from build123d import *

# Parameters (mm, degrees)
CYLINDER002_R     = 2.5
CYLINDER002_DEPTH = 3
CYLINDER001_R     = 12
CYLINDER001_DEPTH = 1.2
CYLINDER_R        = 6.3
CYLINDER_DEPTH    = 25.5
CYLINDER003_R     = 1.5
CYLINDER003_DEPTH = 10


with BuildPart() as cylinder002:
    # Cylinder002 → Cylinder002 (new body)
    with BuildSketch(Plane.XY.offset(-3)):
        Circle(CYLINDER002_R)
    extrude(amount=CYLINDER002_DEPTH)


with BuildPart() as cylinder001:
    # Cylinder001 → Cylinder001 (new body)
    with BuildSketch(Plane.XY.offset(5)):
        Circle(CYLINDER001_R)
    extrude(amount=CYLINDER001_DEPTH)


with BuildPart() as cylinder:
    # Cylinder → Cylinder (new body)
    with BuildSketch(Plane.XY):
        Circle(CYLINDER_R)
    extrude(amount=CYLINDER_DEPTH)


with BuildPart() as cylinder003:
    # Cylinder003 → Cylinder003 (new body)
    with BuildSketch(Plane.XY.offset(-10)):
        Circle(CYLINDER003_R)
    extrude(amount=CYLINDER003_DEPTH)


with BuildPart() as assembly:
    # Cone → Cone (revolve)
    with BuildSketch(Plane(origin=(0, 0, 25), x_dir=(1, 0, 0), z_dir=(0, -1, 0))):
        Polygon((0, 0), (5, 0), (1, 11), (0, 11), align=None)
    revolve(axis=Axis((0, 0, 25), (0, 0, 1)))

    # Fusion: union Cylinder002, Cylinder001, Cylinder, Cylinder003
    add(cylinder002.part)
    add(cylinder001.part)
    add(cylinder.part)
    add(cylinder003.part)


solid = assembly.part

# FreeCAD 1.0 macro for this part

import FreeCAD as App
import Part
import Sketcher

V = App.Vector

doc = App.newDocument("Part")
params = doc.addObject("Spreadsheet::Sheet", "Params")
for row, (alias, value) in enumerate([
    ("sketch1_diameter", "5 mm"),
    ("pad1_length", "3 mm"),
    ("sketch2_diameter", "24 mm"),
    ("pad2_length", "1.2 mm"),
    ("sketch3_diameter", "12.6 mm"),
    ("pad3_length", "25.5 mm"),
    ("sketch4_diameter", "3 mm"),
    ("pad4_length", "10 mm"),
    ("sketch5_width", "5 mm"),
    ("sketch5_width2", "1 mm"),
    ("sketch5_height", "11 mm"),
    ("revolution_angle", "360 deg"),
], start=1):
    params.set(f"A{row}", alias)
    params.set(f"B{row}", "=" + value)
    params.setAlias(f"B{row}", alias)

body = doc.addObject("PartDesign::Body", "Body")

# Sketch on XY plane
sketch1 = body.newObject("Sketcher::SketchObject", "Sketch")
sketch1.AttachmentSupport = (doc.getObject("XY_Plane"), [""])
sketch1.MapMode = "FlatFace"
sketch1.AttachmentOffset = App.Placement(V(0, 0, -3), App.Rotation())
sketch1.addGeometry(Part.Circle(V(0, 0, 0), V(0, 0, 1), 2.5), False)
sketch1.addConstraint([
    Sketcher.Constraint("Coincident", 0, 3, -1, 1),
    Sketcher.Constraint("Diameter", 0, 5.0),
])
sketch1.setExpression("Constraints[1]", "Params.sketch1_diameter")
pad1 = body.newObject("PartDesign::Pad", "Pad")
pad1.Profile = sketch1
pad1.setExpression("Length", "Params.pad1_length")
body2 = doc.addObject("PartDesign::Body", "Body001")

# Sketch on XY plane
sketch2 = body2.newObject("Sketcher::SketchObject", "Sketch001")
sketch2.AttachmentSupport = (doc.getObject("XY_Plane001"), [""])
sketch2.MapMode = "FlatFace"
sketch2.AttachmentOffset = App.Placement(V(0, 0, 5), App.Rotation())
sketch2.addGeometry(Part.Circle(V(0, 0, 0), V(0, 0, 1), 12), False)
sketch2.addConstraint([
    Sketcher.Constraint("Coincident", 0, 3, -1, 1),
    Sketcher.Constraint("Diameter", 0, 24.0),
])
sketch2.setExpression("Constraints[1]", "Params.sketch2_diameter")
pad2 = body2.newObject("PartDesign::Pad", "Pad001")
pad2.Profile = sketch2
pad2.setExpression("Length", "Params.pad2_length")
body3 = doc.addObject("PartDesign::Body", "Body002")

# Sketch on XY plane
sketch3 = body3.newObject("Sketcher::SketchObject", "Sketch002")
sketch3.AttachmentSupport = (doc.getObject("XY_Plane002"), [""])
sketch3.MapMode = "FlatFace"
sketch3.addGeometry(Part.Circle(V(0, 0, 0), V(0, 0, 1), 6), False)
sketch3.addConstraint([
    Sketcher.Constraint("Coincident", 0, 3, -1, 1),
    Sketcher.Constraint("Diameter", 0, 12.6),
])
sketch3.setExpression("Constraints[1]", "Params.sketch3_diameter")
pad3 = body3.newObject("PartDesign::Pad", "Pad002")
pad3.Profile = sketch3
pad3.setExpression("Length", "Params.pad3_length")
body4 = doc.addObject("PartDesign::Body", "Body003")

# Sketch on XY plane
sketch4 = body4.newObject("Sketcher::SketchObject", "Sketch003")
sketch4.AttachmentSupport = (doc.getObject("XY_Plane003"), [""])
sketch4.MapMode = "FlatFace"
sketch4.AttachmentOffset = App.Placement(V(0, 0, -10), App.Rotation())
sketch4.addGeometry(Part.Circle(V(0, 0, 0), V(0, 0, 1), 1.5), False)
sketch4.addConstraint([
    Sketcher.Constraint("Coincident", 0, 3, -1, 1),
    Sketcher.Constraint("Diameter", 0, 3.0),
])
sketch4.setExpression("Constraints[1]", "Params.sketch4_diameter")
pad4 = body4.newObject("PartDesign::Pad", "Pad003")
pad4.Profile = sketch4
pad4.setExpression("Length", "Params.pad4_length")
body5 = doc.addObject("PartDesign::Body", "Body004")
body5.AllowCompound = True

# Sketch on XZ plane
sketch5 = body5.newObject("Sketcher::SketchObject", "Sketch004")
sketch5.AttachmentSupport = (doc.getObject("XZ_Plane004"), [""])
sketch5.MapMode = "FlatFace"
sketch5.addGeometry([
    Part.LineSegment(V(0, 25, 0), V(5, 25, 0)),
    Part.LineSegment(V(5, 25, 0), V(1, 36, 0)),
    Part.LineSegment(V(1, 36, 0), V(0, 36, 0)),
    Part.LineSegment(V(0, 36, 0), V(0, 25, 0)),
], False)
sketch5.addConstraint([
    Sketcher.Constraint("Coincident", 0, 2, 1, 1),
    Sketcher.Constraint("Coincident", 1, 2, 2, 1),
    Sketcher.Constraint("Coincident", 2, 2, 3, 1),
    Sketcher.Constraint("Coincident", 3, 2, 0, 1),
    Sketcher.Constraint("Horizontal", 0),
    Sketcher.Constraint("Horizontal", 2),
    Sketcher.Constraint("Vertical", 3),
    Sketcher.Constraint("PointOnObject", 2, 2, -2),
    Sketcher.Constraint("DistanceX", 0, 1, 0, 2, 5.0),
    Sketcher.Constraint("DistanceX", 2, 2, 2, 1, 1.0),
    Sketcher.Constraint("DistanceY", 3, 2, 3, 1, 11.0),
    Sketcher.Constraint("DistanceY", -1, 1, 0, 2, 25.0),
])
sketch5.setExpression("Constraints[8]", "Params.sketch5_width")
sketch5.setExpression("Constraints[9]", "Params.sketch5_width2")
sketch5.setExpression("Constraints[10]", "Params.sketch5_height")
revolution = body5.newObject("PartDesign::Revolution", "Revolution")
revolution.Profile = sketch5
revolution.ReferenceAxis = (sketch5, ["V_Axis"])
revolution.setExpression("Angle", "Params.revolution_angle")
doc.recompute()

boolean = body5.newObject("PartDesign::Boolean", "Boolean")
boolean.Type = "Fuse"
boolean.addObjects([body])
doc.recompute()

boolean2 = body5.newObject("PartDesign::Boolean", "Boolean001")
boolean2.Type = "Fuse"
boolean2.addObjects([body2])
doc.recompute()

boolean3 = body5.newObject("PartDesign::Boolean", "Boolean002")
boolean3.Type = "Fuse"
boolean3.addObjects([body3])
doc.recompute()

boolean4 = body5.newObject("PartDesign::Boolean", "Boolean003")
boolean4.Type = "Fuse"
boolean4.addObjects([body4])

doc.recompute()
